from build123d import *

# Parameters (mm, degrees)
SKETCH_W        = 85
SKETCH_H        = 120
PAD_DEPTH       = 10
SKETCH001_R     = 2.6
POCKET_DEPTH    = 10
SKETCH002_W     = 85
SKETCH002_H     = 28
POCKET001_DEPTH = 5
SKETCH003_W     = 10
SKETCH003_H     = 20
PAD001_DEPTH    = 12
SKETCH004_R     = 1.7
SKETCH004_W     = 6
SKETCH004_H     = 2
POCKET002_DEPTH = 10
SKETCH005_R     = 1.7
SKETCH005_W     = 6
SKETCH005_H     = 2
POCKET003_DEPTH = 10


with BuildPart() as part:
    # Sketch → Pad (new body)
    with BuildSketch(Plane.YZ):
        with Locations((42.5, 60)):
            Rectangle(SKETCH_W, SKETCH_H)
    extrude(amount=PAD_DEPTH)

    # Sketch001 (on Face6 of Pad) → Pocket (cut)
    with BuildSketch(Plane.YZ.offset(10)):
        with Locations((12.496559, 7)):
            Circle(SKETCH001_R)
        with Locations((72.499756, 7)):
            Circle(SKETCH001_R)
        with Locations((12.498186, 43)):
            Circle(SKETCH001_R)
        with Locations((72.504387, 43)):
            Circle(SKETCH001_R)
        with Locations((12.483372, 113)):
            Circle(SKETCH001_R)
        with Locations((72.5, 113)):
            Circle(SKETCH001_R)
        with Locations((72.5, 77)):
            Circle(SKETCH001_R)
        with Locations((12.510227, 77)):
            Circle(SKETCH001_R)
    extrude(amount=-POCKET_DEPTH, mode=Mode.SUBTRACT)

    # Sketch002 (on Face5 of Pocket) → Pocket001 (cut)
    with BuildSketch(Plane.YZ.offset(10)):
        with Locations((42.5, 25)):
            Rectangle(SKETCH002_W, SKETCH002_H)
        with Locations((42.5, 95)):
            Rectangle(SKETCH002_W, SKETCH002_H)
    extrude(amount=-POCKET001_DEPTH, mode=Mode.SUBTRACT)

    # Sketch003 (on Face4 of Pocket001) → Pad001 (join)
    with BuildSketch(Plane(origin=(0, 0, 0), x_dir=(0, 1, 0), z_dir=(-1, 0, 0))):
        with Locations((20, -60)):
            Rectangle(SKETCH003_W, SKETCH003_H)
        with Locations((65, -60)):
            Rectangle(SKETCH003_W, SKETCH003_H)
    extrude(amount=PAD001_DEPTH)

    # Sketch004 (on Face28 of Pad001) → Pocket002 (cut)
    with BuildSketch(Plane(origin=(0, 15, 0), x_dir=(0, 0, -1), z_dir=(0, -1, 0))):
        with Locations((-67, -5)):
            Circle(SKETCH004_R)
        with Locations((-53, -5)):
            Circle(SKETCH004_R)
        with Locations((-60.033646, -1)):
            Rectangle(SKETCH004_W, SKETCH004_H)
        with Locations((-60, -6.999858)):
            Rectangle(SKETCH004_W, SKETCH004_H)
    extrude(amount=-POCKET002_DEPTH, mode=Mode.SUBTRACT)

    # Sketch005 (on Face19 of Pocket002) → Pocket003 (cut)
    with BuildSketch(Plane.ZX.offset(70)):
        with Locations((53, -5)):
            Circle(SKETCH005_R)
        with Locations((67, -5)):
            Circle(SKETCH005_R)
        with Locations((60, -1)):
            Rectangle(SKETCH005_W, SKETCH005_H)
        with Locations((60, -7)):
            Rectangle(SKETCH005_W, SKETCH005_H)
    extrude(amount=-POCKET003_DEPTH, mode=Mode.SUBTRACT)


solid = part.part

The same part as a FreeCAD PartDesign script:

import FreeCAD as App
import Part
import Sketcher
Q = App.Units.Quantity

doc = App.newDocument("Part")
params = doc.addObject("Spreadsheet::Sheet", "Params")
for row, (alias, value) in enumerate([
    ("sketch1_width", "85 mm"),
    ("sketch1_height", "120 mm"),
    ("pad1_length", "10 mm"),
    ("sketch2_diameter", "5.2 mm"),
    ("pocket1_length", "10 mm"),
    ("sketch3_width", "85 mm"),
    ("sketch3_height", "28 mm"),
    ("pocket2_length", "5 mm"),
    ("sketch4_width", "10 mm"),
    ("sketch4_height", "20 mm"),
    ("pad2_length", "12 mm"),
    ("sketch5_diameter", "3.4 mm"),
    ("sketch5_width", "2 mm"),
    ("sketch5_height", "6 mm"),
    ("pocket3_length", "10 mm"),
    ("sketch6_diameter", "3.4 mm"),
    ("sketch6_width", "2 mm"),
    ("sketch6_height", "6 mm"),
    ("pocket4_length", "10 mm"),
], start=1):
    params.set(f"A{row}", alias)
    params.set(f"B{row}", "=" + value)
    params.setAlias(f"B{row}", alias)

body = doc.addObject("PartDesign::Body", "Body")

# Sketch on YZ plane
sketch1 = body.newObject("Sketcher::SketchObject", "Sketch")
sketch1.AttachmentSupport = (doc.getObject("YZ_Plane"), [""])
sketch1.MapMode = "FlatFace"
sketch1.addGeometry(Part.LineSegment(App.Vector(0, 120, 0), App.Vector(0, 0, 0)), False)
sketch1.addGeometry(Part.LineSegment(App.Vector(0, 0, 0), App.Vector(85, 0, 0)), False)
sketch1.addGeometry(Part.LineSegment(App.Vector(85, 0, 0), App.Vector(85, 120, 0)), False)
sketch1.addGeometry(Part.LineSegment(App.Vector(85, 120, 0), App.Vector(0, 120, 0)), False)
sketch1.addConstraint(Sketcher.Constraint("Coincident", 0, 2, 1, 1))
sketch1.addConstraint(Sketcher.Constraint("Coincident", 1, 2, 2, 1))
sketch1.addConstraint(Sketcher.Constraint("Coincident", 2, 2, 3, 1))
sketch1.addConstraint(Sketcher.Constraint("Coincident", 3, 2, 0, 1))
sketch1.addConstraint(Sketcher.Constraint("Vertical", 0))
sketch1.addConstraint(Sketcher.Constraint("Horizontal", 1))
sketch1.addConstraint(Sketcher.Constraint("Vertical", 2))
sketch1.addConstraint(Sketcher.Constraint("Horizontal", 3))
sketch1.addConstraint(Sketcher.Constraint("Coincident", 0, 2, -1, 1))
sketch1.addConstraint(Sketcher.Constraint("DistanceX", 1, 1, 1, 2, Q("85 mm")))
sketch1.addConstraint(Sketcher.Constraint("DistanceY", 0, 2, 0, 1, Q("120 mm")))
sketch1.setExpression("Constraints[9]", "Params.sketch1_width")
sketch1.setExpression("Constraints[10]", "Params.sketch1_height")
pad1 = body.newObject("PartDesign::Pad", "Pad")
pad1.Profile = sketch1
pad1.setExpression("Length", "Params.pad1_length")

# Sketch on YZ plane
sketch2 = body.newObject("Sketcher::SketchObject", "Sketch001")
sketch2.AttachmentSupport = (doc.getObject("YZ_Plane"), [""])
sketch2.MapMode = "FlatFace"
sketch2.AttachmentOffset = App.Placement(App.Vector(0, 0, 10), App.Rotation())
sketch2.addGeometry(Part.Circle(App.Vector(12.5, 7, 0), App.Vector(0, 0, 1), 2.6), False)
sketch2.addGeometry(Part.Circle(App.Vector(72.5, 7, 0), App.Vector(0, 0, 1), 2.6), False)
sketch2.addGeometry(Part.Circle(App.Vector(12.5, 43, 0), App.Vector(0, 0, 1), 2.6), False)
sketch2.addGeometry(Part.Circle(App.Vector(72.5, 43, 0), App.Vector(0, 0, 1), 2.6), False)
sketch2.addGeometry(Part.Circle(App.Vector(12.5, 113, 0), App.Vector(0, 0, 1), 2.6), False)
sketch2.addGeometry(Part.Circle(App.Vector(72.5, 113, 0), App.Vector(0, 0, 1), 2.6), False)
sketch2.addGeometry(Part.Circle(App.Vector(72.5, 77, 0), App.Vector(0, 0, 1), 2.6), False)
sketch2.addGeometry(Part.Circle(App.Vector(12.5, 77, 0), App.Vector(0, 0, 1), 2.6), False)
sketch2.addConstraint(Sketcher.Constraint("Equal", 0, 1))
sketch2.addConstraint(Sketcher.Constraint("Equal", 1, 2))
sketch2.addConstraint(Sketcher.Constraint("Equal", 2, 3))
sketch2.addConstraint(Sketcher.Constraint("Equal", 3, 4))
sketch2.addConstraint(Sketcher.Constraint("Equal", 4, 5))
sketch2.addConstraint(Sketcher.Constraint("Equal", 5, 6))
sketch2.addConstraint(Sketcher.Constraint("Equal", 6, 7))
sketch2.addConstraint(Sketcher.Constraint("Horizontal", 0, 3, 1, 3))
sketch2.addConstraint(Sketcher.Constraint("Horizontal", 2, 3, 3, 3))
sketch2.addConstraint(Sketcher.Constraint("Horizontal", 4, 3, 5, 3))
sketch2.addConstraint(Sketcher.Constraint("Horizontal", 6, 3, 7, 3))
sketch2.addConstraint(Sketcher.Constraint("Vertical", 5, 3, 6, 3))
sketch2.addConstraint(Sketcher.Constraint("Diameter", 0, Q("5.2 mm")))
sketch2.addConstraint(Sketcher.Constraint("DistanceY", -1, 1, 0, 3, Q("7 mm")))
sketch2.addConstraint(Sketcher.Constraint("DistanceY", -1, 1, 2, 3, Q("43 mm")))
sketch2.addConstraint(Sketcher.Constraint("DistanceY", -1, 1, 4, 3, Q("113 mm")))
sketch2.addConstraint(Sketcher.Constraint("DistanceY", -1, 1, 6, 3, Q("77 mm")))
sketch2.addConstraint(Sketcher.Constraint("DistanceX", -1, 1, 5, 3, Q("72.5 mm")))
sketch2.addConstraint(Sketcher.Constraint("DistanceX", 2, 3, 3, 3, Q("60.006201 mm")))
sketch2.addConstraint(Sketcher.Constraint("DistanceX", -1, 1, 0, 3, Q("12.496559 mm")))
sketch2.addConstraint(Sketcher.Constraint("DistanceX", -1, 1, 4, 3, Q("12.483372 mm")))
sketch2.addConstraint(Sketcher.Constraint("DistanceX", 2, 3, 1, 3, Q("60.00157 mm")))
sketch2.addConstraint(Sketcher.Constraint("DistanceX", 2, 3, 7, 3, Q("0.012041 mm")))
sketch2.addConstraint(Sketcher.Constraint("DistanceX", -1, 1, 1, 3, Q("72.499756 mm")))
sketch2.setExpression("Constraints[12]", "Params.sketch2_diameter")
pocket1 = body.newObject("PartDesign::Pocket", "Pocket")
pocket1.Profile = sketch2
pocket1.setExpression("Length", "Params.pocket1_length")

# Sketch on YZ plane
sketch3 = body.newObject("Sketcher::SketchObject", "Sketch002")
sketch3.AttachmentSupport = (doc.getObject("YZ_Plane"), [""])
sketch3.MapMode = "FlatFace"
sketch3.AttachmentOffset = App.Placement(App.Vector(0, 0, 10), App.Rotation())
sketch3.addGeometry(Part.LineSegment(App.Vector(0, 39, 0), App.Vector(0, 11, 0)), False)
sketch3.addGeometry(Part.LineSegment(App.Vector(0, 11, 0), App.Vector(85, 11, 0)), False)
sketch3.addGeometry(Part.LineSegment(App.Vector(85, 11, 0), App.Vector(85, 39, 0)), False)
sketch3.addGeometry(Part.LineSegment(App.Vector(85, 39, 0), App.Vector(0, 39, 0)), False)
sketch3.addGeometry(Part.LineSegment(App.Vector(0, 109, 0), App.Vector(0, 81, 0)), False)
sketch3.addGeometry(Part.LineSegment(App.Vector(0, 81, 0), App.Vector(85, 81, 0)), False)
sketch3.addGeometry(Part.LineSegment(App.Vector(85, 81, 0), App.Vector(85, 109, 0)), False)
sketch3.addGeometry(Part.LineSegment(App.Vector(85, 109, 0), App.Vector(0, 109, 0)), False)
sketch3.addConstraint(Sketcher.Constraint("Coincident", 0, 2, 1, 1))
sketch3.addConstraint(Sketcher.Constraint("Coincident", 1, 2, 2, 1))
sketch3.addConstraint(Sketcher.Constraint("Coincident", 2, 2, 3, 1))
sketch3.addConstraint(Sketcher.Constraint("Coincident", 3, 2, 0, 1))
sketch3.addConstraint(Sketcher.Constraint("Coincident", 4, 2, 5, 1))
sketch3.addConstraint(Sketcher.Constraint("Coincident", 5, 2, 6, 1))
sketch3.addConstraint(Sketcher.Constraint("Coincident", 6, 2, 7, 1))
sketch3.addConstraint(Sketcher.Constraint("Coincident", 7, 2, 4, 1))
sketch3.addConstraint(Sketcher.Constraint("Vertical", 0))
sketch3.addConstraint(Sketcher.Constraint("Horizontal", 1))
sketch3.addConstraint(Sketcher.Constraint("Vertical", 2))
sketch3.addConstraint(Sketcher.Constraint("Horizontal", 3))
sketch3.addConstraint(Sketcher.Constraint("Vertical", 4))
sketch3.addConstraint(Sketcher.Constraint("Horizontal", 5))
sketch3.addConstraint(Sketcher.Constraint("Vertical", 6))
sketch3.addConstraint(Sketcher.Constraint("Horizontal", 7))
sketch3.addConstraint(Sketcher.Constraint("PointOnObject", 0, 2, -2))
sketch3.addConstraint(Sketcher.Constraint("PointOnObject", 4, 2, -2))
sketch3.addConstraint(Sketcher.Constraint("Vertical", 2, 2, 5, 2))
sketch3.addConstraint(Sketcher.Constraint("Equal", 2, 4))
sketch3.addConstraint(Sketcher.Constraint("DistanceX", 1, 1, 1, 2, Q("85 mm")))
sketch3.addConstraint(Sketcher.Constraint("DistanceY", 0, 2, 0, 1, Q("28 mm")))
sketch3.addConstraint(Sketcher.Constraint("DistanceY", -1, 1, 0, 2, Q("11 mm")))
sketch3.addConstraint(Sketcher.Constraint("DistanceY", -1, 1, 4, 2, Q("81 mm")))
sketch3.setExpression("Constraints[20]", "Params.sketch3_width")
sketch3.setExpression("Constraints[21]", "Params.sketch3_height")
pocket2 = body.newObject("PartDesign::Pocket", "Pocket001")
pocket2.Profile = sketch3
pocket2.setExpression("Length", "Params.pocket2_length")

# Sketch on YZ plane
sketch4 = body.newObject("Sketcher::SketchObject", "Sketch003")
sketch4.AttachmentSupport = (doc.getObject("YZ_Plane"), [""])
sketch4.MapMode = "FlatFace"
sketch4.addGeometry(Part.LineSegment(App.Vector(15, 50, 0), App.Vector(15, 70, 0)), False)
sketch4.addGeometry(Part.LineSegment(App.Vector(15, 70, 0), App.Vector(25, 70, 0)), False)
sketch4.addGeometry(Part.LineSegment(App.Vector(25, 70, 0), App.Vector(25, 50, 0)), False)
sketch4.addGeometry(Part.LineSegment(App.Vector(25, 50, 0), App.Vector(15, 50, 0)), False)
sketch4.addGeometry(Part.LineSegment(App.Vector(60, 50, 0), App.Vector(60, 70, 0)), False)
sketch4.addGeometry(Part.LineSegment(App.Vector(60, 70, 0), App.Vector(70, 70, 0)), False)
sketch4.addGeometry(Part.LineSegment(App.Vector(70, 70, 0), App.Vector(70, 50, 0)), False)
sketch4.addGeometry(Part.LineSegment(App.Vector(70, 50, 0), App.Vector(60, 50, 0)), False)
sketch4.addConstraint(Sketcher.Constraint("Coincident", 0, 2, 1, 1))
sketch4.addConstraint(Sketcher.Constraint("Coincident", 1, 2, 2, 1))
sketch4.addConstraint(Sketcher.Constraint("Coincident", 2, 2, 3, 1))
sketch4.addConstraint(Sketcher.Constraint("Coincident", 3, 2, 0, 1))
sketch4.addConstraint(Sketcher.Constraint("Coincident", 4, 2, 5, 1))
sketch4.addConstraint(Sketcher.Constraint("Coincident", 5, 2, 6, 1))
sketch4.addConstraint(Sketcher.Constraint("Coincident", 6, 2, 7, 1))
sketch4.addConstraint(Sketcher.Constraint("Coincident", 7, 2, 4, 1))
sketch4.addConstraint(Sketcher.Constraint("Vertical", 0))
sketch4.addConstraint(Sketcher.Constraint("Horizontal", 1))
sketch4.addConstraint(Sketcher.Constraint("Vertical", 2))
sketch4.addConstraint(Sketcher.Constraint("Horizontal", 3))
sketch4.addConstraint(Sketcher.Constraint("Vertical", 4))
sketch4.addConstraint(Sketcher.Constraint("Horizontal", 5))
sketch4.addConstraint(Sketcher.Constraint("Vertical", 6))
sketch4.addConstraint(Sketcher.Constraint("Horizontal", 7))
sketch4.addConstraint(Sketcher.Constraint("Horizontal", 1, 2, 4, 2))
sketch4.addConstraint(Sketcher.Constraint("Horizontal", 3, 2, 6, 2))
sketch4.addConstraint(Sketcher.Constraint("Equal", 3, 5))
sketch4.addConstraint(Sketcher.Constraint("DistanceX", 1, 1, 1, 2, Q("10 mm")))
sketch4.addConstraint(Sketcher.Constraint("DistanceY", 0, 1, 0, 2, Q("20 mm")))
sketch4.addConstraint(Sketcher.Constraint("DistanceX", -1, 1, 0, 2, Q("15 mm")))
sketch4.addConstraint(Sketcher.Constraint("DistanceY", -1, 1, 0, 2, Q("70 mm")))
sketch4.addConstraint(Sketcher.Constraint("DistanceX", -1, 1, 4, 2, Q("60 mm")))
sketch4.setExpression("Constraints[19]", "Params.sketch4_width")
sketch4.setExpression("Constraints[20]", "Params.sketch4_height")
pad2 = body.newObject("PartDesign::Pad", "Pad001")
pad2.Profile = sketch4
pad2.setExpression("Length", "Params.pad2_length")
pad2.Reversed = True

# Sketch on XZ plane
sketch5 = body.newObject("Sketcher::SketchObject", "Sketch004")
sketch5.AttachmentSupport = (doc.getObject("XZ_Plane"), [""])
sketch5.MapMode = "FlatFace"
sketch5.AttachmentOffset = App.Placement(App.Vector(0, 0, -15), App.Rotation())
sketch5.addGeometry(Part.Circle(App.Vector(-5, 67, 0), App.Vector(0, 0, 1), 1.7), False)
sketch5.addGeometry(Part.Circle(App.Vector(-5, 53, 0), App.Vector(0, 0, 1), 1.7), False)
sketch5.addGeometry(Part.LineSegment(App.Vector(0, 63, 0), App.Vector(-2, 63, 0)), False)
sketch5.addGeometry(Part.LineSegment(App.Vector(-2, 63, 0), App.Vector(-2, 57, 0)), False)
sketch5.addGeometry(Part.LineSegment(App.Vector(-2, 57, 0), App.Vector(0, 57, 0)), False)
sketch5.addGeometry(Part.LineSegment(App.Vector(0, 57, 0), App.Vector(0, 63, 0)), False)
sketch5.addGeometry(Part.LineSegment(App.Vector(-6, 63, 0), App.Vector(-8, 63, 0)), False)
sketch5.addGeometry(Part.LineSegment(App.Vector(-8, 63, 0), App.Vector(-8, 57, 0)), False)
sketch5.addGeometry(Part.LineSegment(App.Vector(-8, 57, 0), App.Vector(-6, 57, 0)), False)
sketch5.addGeometry(Part.LineSegment(App.Vector(-6, 57, 0), App.Vector(-6, 63, 0)), False)
sketch5.addConstraint(Sketcher.Constraint("Coincident", 2, 2, 3, 1))
sketch5.addConstraint(Sketcher.Constraint("Coincident", 3, 2, 4, 1))
sketch5.addConstraint(Sketcher.Constraint("Coincident", 4, 2, 5, 1))
sketch5.addConstraint(Sketcher.Constraint("Coincident", 5, 2, 2, 1))
sketch5.addConstraint(Sketcher.Constraint("Coincident", 6, 2, 7, 1))
sketch5.addConstraint(Sketcher.Constraint("Coincident", 7, 2, 8, 1))
sketch5.addConstraint(Sketcher.Constraint("Coincident", 8, 2, 9, 1))
sketch5.addConstraint(Sketcher.Constraint("Coincident", 9, 2, 6, 1))
sketch5.addConstraint(Sketcher.Constraint("Horizontal", 2))
sketch5.addConstraint(Sketcher.Constraint("Vertical", 3))
sketch5.addConstraint(Sketcher.Constraint("Horizontal", 4))
sketch5.addConstraint(Sketcher.Constraint("Vertical", 5))
sketch5.addConstraint(Sketcher.Constraint("Horizontal", 6))
sketch5.addConstraint(Sketcher.Constraint("Vertical", 7))
sketch5.addConstraint(Sketcher.Constraint("Horizontal", 8))
sketch5.addConstraint(Sketcher.Constraint("Vertical", 9))
sketch5.addConstraint(Sketcher.Constraint("Equal", 0, 1))
sketch5.addConstraint(Sketcher.Constraint("PointOnObject", 4, 2, -2))
sketch5.addConstraint(Sketcher.Constraint("Vertical", 0, 3, 1, 3))
sketch5.addConstraint(Sketcher.Constraint("Equal", 4, 6))
sketch5.addConstraint(Sketcher.Constraint("Equal", 5, 7))
sketch5.addConstraint(Sketcher.Constraint("Diameter", 0, Q("3.4 mm")))
sketch5.addConstraint(Sketcher.Constraint("DistanceX", 2, 2, 2, 1, Q("2 mm")))
sketch5.addConstraint(Sketcher.Constraint("DistanceY", 3, 2, 3, 1, Q("6 mm")))
sketch5.addConstraint(Sketcher.Constraint("DistanceX", 0, 3, -1, 1, Q("5 mm")))
sketch5.addConstraint(Sketcher.Constraint("DistanceY", -1, 1, 0, 3, Q("67 mm")))
sketch5.addConstraint(Sketcher.Constraint("DistanceY", -1, 1, 1, 3, Q("53 mm")))
sketch5.addConstraint(Sketcher.Constraint("DistanceY", -1, 1, 6, 2, Q("63 mm")))
sketch5.addConstraint(Sketcher.Constraint("DistanceY", -1, 1, 2, 2, Q("63.033646 mm")))
sketch5.addConstraint(Sketcher.Constraint("DistanceX", 6, 2, -1, 1, Q("7.999858 mm")))
sketch5.setExpression("Constraints[21]", "Params.sketch5_diameter")
sketch5.setExpression("Constraints[22]", "Params.sketch5_width")
sketch5.setExpression("Constraints[23]", "Params.sketch5_height")
pocket3 = body.newObject("PartDesign::Pocket", "Pocket002")
pocket3.Profile = sketch5
pocket3.setExpression("Length", "Params.pocket3_length")

# Sketch on XZ plane
sketch6 = body.newObject("Sketcher::SketchObject", "Sketch005")
sketch6.AttachmentSupport = (doc.getObject("XZ_Plane"), [""])
sketch6.MapMode = "FlatFace"
sketch6.AttachmentOffset = App.Placement(App.Vector(0, 0, -70), App.Rotation())
sketch6.addGeometry(Part.Circle(App.Vector(-5, 53, 0), App.Vector(0, 0, 1), 1.7), False)
sketch6.addGeometry(Part.Circle(App.Vector(-5, 67, 0), App.Vector(0, 0, 1), 1.7), False)
sketch6.addGeometry(Part.LineSegment(App.Vector(0, 57, 0), App.Vector(-2, 57, 0)), False)
sketch6.addGeometry(Part.LineSegment(App.Vector(-2, 57, 0), App.Vector(-2, 63, 0)), False)
sketch6.addGeometry(Part.LineSegment(App.Vector(-2, 63, 0), App.Vector(0, 63, 0)), False)
sketch6.addGeometry(Part.LineSegment(App.Vector(0, 63, 0), App.Vector(0, 57, 0)), False)
sketch6.addGeometry(Part.LineSegment(App.Vector(-6, 57, 0), App.Vector(-8, 57, 0)), False)
sketch6.addGeometry(Part.LineSegment(App.Vector(-8, 57, 0), App.Vector(-8, 63, 0)), False)
sketch6.addGeometry(Part.LineSegment(App.Vector(-8, 63, 0), App.Vector(-6, 63, 0)), False)
sketch6.addGeometry(Part.LineSegment(App.Vector(-6, 63, 0), App.Vector(-6, 57, 0)), False)
sketch6.addConstraint(Sketcher.Constraint("Coincident", 2, 2, 3, 1))
sketch6.addConstraint(Sketcher.Constraint("Coincident", 3, 2, 4, 1))
sketch6.addConstraint(Sketcher.Constraint("Coincident", 4, 2, 5, 1))
sketch6.addConstraint(Sketcher.Constraint("Coincident", 5, 2, 2, 1))
sketch6.addConstraint(Sketcher.Constraint("Coincident", 6, 2, 7, 1))
sketch6.addConstraint(Sketcher.Constraint("Coincident", 7, 2, 8, 1))
sketch6.addConstraint(Sketcher.Constraint("Coincident", 8, 2, 9, 1))
sketch6.addConstraint(Sketcher.Constraint("Coincident", 9, 2, 6, 1))
sketch6.addConstraint(Sketcher.Constraint("Horizontal", 2))
sketch6.addConstraint(Sketcher.Constraint("Vertical", 3))
sketch6.addConstraint(Sketcher.Constraint("Horizontal", 4))
sketch6.addConstraint(Sketcher.Constraint("Vertical", 5))
sketch6.addConstraint(Sketcher.Constraint("Horizontal", 6))
sketch6.addConstraint(Sketcher.Constraint("Vertical", 7))
sketch6.addConstraint(Sketcher.Constraint("Horizontal", 8))
sketch6.addConstraint(Sketcher.Constraint("Vertical", 9))
sketch6.addConstraint(Sketcher.Constraint("Equal", 0, 1))
sketch6.addConstraint(Sketcher.Constraint("PointOnObject", 4, 2, -2))
sketch6.addConstraint(Sketcher.Constraint("Horizontal", 5, 2, 6, 2))
sketch6.addConstraint(Sketcher.Constraint("Horizontal", 4, 2, 7, 2))
sketch6.addConstraint(Sketcher.Constraint("Vertical", 0, 3, 1, 3))
sketch6.addConstraint(Sketcher.Constraint("Equal", 4, 6))
sketch6.addConstraint(Sketcher.Constraint("Diameter", 0, Q("3.4 mm")))
sketch6.addConstraint(Sketcher.Constraint("DistanceX", 2, 2, 2, 1, Q("2 mm")))
sketch6.addConstraint(Sketcher.Constraint("DistanceY", 3, 1, 3, 2, Q("6 mm")))
sketch6.addConstraint(Sketcher.Constraint("DistanceX", 0, 3, -1, 1, Q("5 mm")))
sketch6.addConstraint(Sketcher.Constraint("DistanceY", -1, 1, 0, 3, Q("53 mm")))
sketch6.addConstraint(Sketcher.Constraint("DistanceY", -1, 1, 1, 3, Q("67 mm")))
sketch6.addConstraint(Sketcher.Constraint("DistanceY", -1, 1, 2, 2, Q("57 mm")))
sketch6.addConstraint(Sketcher.Constraint("DistanceX", 6, 2, -1, 1, Q("8 mm")))
sketch6.setExpression("Constraints[22]", "Params.sketch6_diameter")
sketch6.setExpression("Constraints[23]", "Params.sketch6_width")
sketch6.setExpression("Constraints[24]", "Params.sketch6_height")
pocket4 = body.newObject("PartDesign::Pocket", "Pocket003")
pocket4.Profile = sketch6
pocket4.setExpression("Length", "Params.pocket4_length")
pocket4.Reversed = True

doc.recompute()
